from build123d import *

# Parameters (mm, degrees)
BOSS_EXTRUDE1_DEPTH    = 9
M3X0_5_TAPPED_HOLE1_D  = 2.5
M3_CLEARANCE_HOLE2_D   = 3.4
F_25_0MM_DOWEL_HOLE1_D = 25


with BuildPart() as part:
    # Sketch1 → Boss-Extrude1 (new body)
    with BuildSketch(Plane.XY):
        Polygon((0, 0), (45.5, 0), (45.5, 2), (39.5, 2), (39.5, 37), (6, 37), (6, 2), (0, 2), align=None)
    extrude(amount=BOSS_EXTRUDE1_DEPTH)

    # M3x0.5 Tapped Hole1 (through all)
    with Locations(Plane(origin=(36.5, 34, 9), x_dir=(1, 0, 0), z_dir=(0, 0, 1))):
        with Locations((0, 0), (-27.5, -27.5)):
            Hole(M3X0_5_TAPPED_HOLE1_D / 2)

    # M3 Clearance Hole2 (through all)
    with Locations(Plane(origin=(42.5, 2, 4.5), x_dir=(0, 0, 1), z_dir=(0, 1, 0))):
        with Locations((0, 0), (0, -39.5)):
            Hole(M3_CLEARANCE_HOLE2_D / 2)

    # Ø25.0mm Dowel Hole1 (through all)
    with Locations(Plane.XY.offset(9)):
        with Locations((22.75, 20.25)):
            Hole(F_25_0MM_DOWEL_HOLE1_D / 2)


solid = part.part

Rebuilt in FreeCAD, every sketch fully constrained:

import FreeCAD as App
import Part
import Sketcher
from FreeCAD import Vector


def add_polygon(sketch, points):
    """Adds a closed chain of lines whose ends are joined by coincident constraints."""
    first, n = sketch.GeometryCount, len(points)
    for a, b in zip(points, points[1:] + points[:1]):
        sketch.addGeometry(Part.LineSegment(App.Vector(*a, 0), App.Vector(*b, 0)), False)
    for i in range(n):
        sketch.addConstraint(Sketcher.Constraint("Coincident", first + i, 2, first + (i + 1) % n, 1))

doc = App.newDocument("Part")
params = doc.addObject("Spreadsheet::Sheet", "Params")
for row, (alias, value) in enumerate([
    ("sketch1_width", "6 mm"),
    ("sketch1_height", "2 mm"),
    ("sketch1_height2", "35 mm"),
    ("sketch1_width2", "45.5 mm"),
    ("pad1_length", "9 mm"),
    ("sketch2_diameter", "2.5 mm"),
    ("hole_diameter", "2.5 mm"),
    ("sketch3_diameter", "3.4 mm"),
    ("hole2_diameter", "3.4 mm"),
    ("sketch4_diameter", "25 mm"),
    ("hole3_diameter", "25 mm"),
], start=1):
    params.set(f"A{row}", alias)
    params.set(f"B{row}", "=" + value)
    params.setAlias(f"B{row}", alias)

body = doc.addObject("PartDesign::Body", "Body")

# Sketch on XY plane
sketch1 = body.newObject("Sketcher::SketchObject", "Sketch")
sketch1.AttachmentSupport = (doc.getObject("XY_Plane"), [""])
sketch1.MapMode = "FlatFace"
add_polygon(sketch1, [(0, 0), (45.5, 0), (45.5, 2), (39.5, 2), (39.5, 37), (6, 37), (6, 2), (0, 2)])  # lines 0-7
sketch1.addConstraint(Sketcher.Constraint("Horizontal", 0))
sketch1.addConstraint(Sketcher.Constraint("Vertical", 1))
sketch1.addConstraint(Sketcher.Constraint("Horizontal", 2))
sketch1.addConstraint(Sketcher.Constraint("Vertical", 3))
sketch1.addConstraint(Sketcher.Constraint("Horizontal", 4))
sketch1.addConstraint(Sketcher.Constraint("Vertical", 5))
sketch1.addConstraint(Sketcher.Constraint("Horizontal", 6))
sketch1.addConstraint(Sketcher.Constraint("Vertical", 7))
sketch1.addConstraint(Sketcher.Constraint("Coincident", 7, 2, -1, 1))
sketch1.addConstraint(Sketcher.Constraint("Horizontal", 2, 2, 5, 2))
sketch1.addConstraint(Sketcher.Constraint("Equal", 2, 6))
sketch1.addConstraint(Sketcher.Constraint("DistanceX", 2, 2, 2, 1, 6.0))
sketch1.addConstraint(Sketcher.Constraint("DistanceY", 1, 1, 1, 2, 2.0))
sketch1.addConstraint(Sketcher.Constraint("DistanceY", 3, 1, 3, 2, 35.0))
sketch1.addConstraint(Sketcher.Constraint("DistanceX", 0, 1, 0, 2, 45.5))
sketch1.setExpression("Constraints[19]", "Params.sketch1_width")
sketch1.setExpression("Constraints[20]", "Params.sketch1_height")
sketch1.setExpression("Constraints[21]", "Params.sketch1_height2")
sketch1.setExpression("Constraints[22]", "Params.sketch1_width2")
pad1 = body.newObject("PartDesign::Pad", "Pad")
pad1.Profile = sketch1
pad1.setExpression("Length", "Params.pad1_length")

# Sketch on XY plane
sketch2 = body.newObject("Sketcher::SketchObject", "Sketch001")
sketch2.AttachmentSupport = (doc.getObject("XY_Plane"), [""])
sketch2.MapMode = "FlatFace"
sketch2.AttachmentOffset = App.Placement(Vector(0, 0, 9), App.Rotation())
sketch2.addGeometry(Part.Circle(Vector(36.5, 34, 0), Vector(0, 0, 1), 1.2), False)
sketch2.addGeometry(Part.Circle(Vector(9, 6.5, 0), Vector(0, 0, 1), 1.2), False)
sketch2.addConstraint(Sketcher.Constraint("Equal", 0, 1))
sketch2.addConstraint(Sketcher.Constraint("Diameter", 0, 2.5))
sketch2.addConstraint(Sketcher.Constraint("DistanceY", -1, 1, 0, 3, 34.0))
sketch2.addConstraint(Sketcher.Constraint("DistanceX", -1, 1, 1, 3, 9.0))
sketch2.addConstraint(Sketcher.Constraint("DistanceX", -1, 1, 0, 3, 36.5))
sketch2.addConstraint(Sketcher.Constraint("DistanceY", -1, 1, 1, 3, 6.5))
sketch2.setExpression("Constraints[1]", "Params.sketch2_diameter")
doc.recompute()
hole = body.newObject("PartDesign::Hole", "Hole")
hole.Profile = sketch2
hole.ThreadType = "None"
hole.setExpression("Diameter", "Params.hole_diameter")
hole.DepthType = "ThroughAll"

# Sketch on XZ plane
sketch3 = body.newObject("Sketcher::SketchObject", "Sketch002")
sketch3.AttachmentSupport = (doc.getObject("XZ_Plane"), [""])
sketch3.MapMode = "FlatFace"
sketch3.AttachmentOffset = App.Placement(Vector(0, 0, -2), App.Rotation())
sketch3.addGeometry(Part.Circle(Vector(42.5, 4.5, 0), Vector(0, 0, 1), 1.7), False)
sketch3.addGeometry(Part.Circle(Vector(3, 4.5, 0), Vector(0, 0, 1), 1.7), False)
sketch3.addConstraint(Sketcher.Constraint("Equal", 0, 1))
sketch3.addConstraint(Sketcher.Constraint("Horizontal", 0, 3, 1, 3))
sketch3.addConstraint(Sketcher.Constraint("Diameter", 0, 3.4))
sketch3.addConstraint(Sketcher.Constraint("DistanceX", -1, 1, 1, 3, 3.0))
sketch3.addConstraint(Sketcher.Constraint("DistanceX", -1, 1, 0, 3, 42.5))
sketch3.addConstraint(Sketcher.Constraint("DistanceY", -1, 1, 0, 3, 4.5))
sketch3.setExpression("Constraints[2]", "Params.sketch3_diameter")
doc.recompute()
hole2 = body.newObject("PartDesign::Hole", "Hole001")
hole2.Profile = sketch3
hole2.ThreadType = "None"
hole2.setExpression("Diameter", "Params.hole2_diameter")
hole2.DepthType = "ThroughAll"
hole2.Reversed = True

# Sketch on XY plane
sketch4 = body.newObject("Sketcher::SketchObject", "Sketch003")
sketch4.AttachmentSupport = (doc.getObject("XY_Plane"), [""])
sketch4.MapMode = "FlatFace"
sketch4.AttachmentOffset = App.Placement(Vector(0, 0, 9), App.Rotation())
sketch4.addGeometry(Part.Circle(Vector(23, 20, 0), Vector(0, 0, 1), 12), False)
sketch4.addConstraint(Sketcher.Constraint("Diameter", 0, 25.0))
sketch4.addConstraint(Sketcher.Constraint("DistanceX", -1, 1, 0, 3, 22.75))
sketch4.addConstraint(Sketcher.Constraint("DistanceY", -1, 1, 0, 3, 20.25))
sketch4.setExpression("Constraints[0]", "Params.sketch4_diameter")
doc.recompute()
hole3 = body.newObject("PartDesign::Hole", "Hole002")
hole3.Profile = sketch4
hole3.ThreadType = "None"
hole3.setExpression("Diameter", "Params.hole3_diameter")
hole3.DepthType = "ThroughAll"

doc.recompute()
